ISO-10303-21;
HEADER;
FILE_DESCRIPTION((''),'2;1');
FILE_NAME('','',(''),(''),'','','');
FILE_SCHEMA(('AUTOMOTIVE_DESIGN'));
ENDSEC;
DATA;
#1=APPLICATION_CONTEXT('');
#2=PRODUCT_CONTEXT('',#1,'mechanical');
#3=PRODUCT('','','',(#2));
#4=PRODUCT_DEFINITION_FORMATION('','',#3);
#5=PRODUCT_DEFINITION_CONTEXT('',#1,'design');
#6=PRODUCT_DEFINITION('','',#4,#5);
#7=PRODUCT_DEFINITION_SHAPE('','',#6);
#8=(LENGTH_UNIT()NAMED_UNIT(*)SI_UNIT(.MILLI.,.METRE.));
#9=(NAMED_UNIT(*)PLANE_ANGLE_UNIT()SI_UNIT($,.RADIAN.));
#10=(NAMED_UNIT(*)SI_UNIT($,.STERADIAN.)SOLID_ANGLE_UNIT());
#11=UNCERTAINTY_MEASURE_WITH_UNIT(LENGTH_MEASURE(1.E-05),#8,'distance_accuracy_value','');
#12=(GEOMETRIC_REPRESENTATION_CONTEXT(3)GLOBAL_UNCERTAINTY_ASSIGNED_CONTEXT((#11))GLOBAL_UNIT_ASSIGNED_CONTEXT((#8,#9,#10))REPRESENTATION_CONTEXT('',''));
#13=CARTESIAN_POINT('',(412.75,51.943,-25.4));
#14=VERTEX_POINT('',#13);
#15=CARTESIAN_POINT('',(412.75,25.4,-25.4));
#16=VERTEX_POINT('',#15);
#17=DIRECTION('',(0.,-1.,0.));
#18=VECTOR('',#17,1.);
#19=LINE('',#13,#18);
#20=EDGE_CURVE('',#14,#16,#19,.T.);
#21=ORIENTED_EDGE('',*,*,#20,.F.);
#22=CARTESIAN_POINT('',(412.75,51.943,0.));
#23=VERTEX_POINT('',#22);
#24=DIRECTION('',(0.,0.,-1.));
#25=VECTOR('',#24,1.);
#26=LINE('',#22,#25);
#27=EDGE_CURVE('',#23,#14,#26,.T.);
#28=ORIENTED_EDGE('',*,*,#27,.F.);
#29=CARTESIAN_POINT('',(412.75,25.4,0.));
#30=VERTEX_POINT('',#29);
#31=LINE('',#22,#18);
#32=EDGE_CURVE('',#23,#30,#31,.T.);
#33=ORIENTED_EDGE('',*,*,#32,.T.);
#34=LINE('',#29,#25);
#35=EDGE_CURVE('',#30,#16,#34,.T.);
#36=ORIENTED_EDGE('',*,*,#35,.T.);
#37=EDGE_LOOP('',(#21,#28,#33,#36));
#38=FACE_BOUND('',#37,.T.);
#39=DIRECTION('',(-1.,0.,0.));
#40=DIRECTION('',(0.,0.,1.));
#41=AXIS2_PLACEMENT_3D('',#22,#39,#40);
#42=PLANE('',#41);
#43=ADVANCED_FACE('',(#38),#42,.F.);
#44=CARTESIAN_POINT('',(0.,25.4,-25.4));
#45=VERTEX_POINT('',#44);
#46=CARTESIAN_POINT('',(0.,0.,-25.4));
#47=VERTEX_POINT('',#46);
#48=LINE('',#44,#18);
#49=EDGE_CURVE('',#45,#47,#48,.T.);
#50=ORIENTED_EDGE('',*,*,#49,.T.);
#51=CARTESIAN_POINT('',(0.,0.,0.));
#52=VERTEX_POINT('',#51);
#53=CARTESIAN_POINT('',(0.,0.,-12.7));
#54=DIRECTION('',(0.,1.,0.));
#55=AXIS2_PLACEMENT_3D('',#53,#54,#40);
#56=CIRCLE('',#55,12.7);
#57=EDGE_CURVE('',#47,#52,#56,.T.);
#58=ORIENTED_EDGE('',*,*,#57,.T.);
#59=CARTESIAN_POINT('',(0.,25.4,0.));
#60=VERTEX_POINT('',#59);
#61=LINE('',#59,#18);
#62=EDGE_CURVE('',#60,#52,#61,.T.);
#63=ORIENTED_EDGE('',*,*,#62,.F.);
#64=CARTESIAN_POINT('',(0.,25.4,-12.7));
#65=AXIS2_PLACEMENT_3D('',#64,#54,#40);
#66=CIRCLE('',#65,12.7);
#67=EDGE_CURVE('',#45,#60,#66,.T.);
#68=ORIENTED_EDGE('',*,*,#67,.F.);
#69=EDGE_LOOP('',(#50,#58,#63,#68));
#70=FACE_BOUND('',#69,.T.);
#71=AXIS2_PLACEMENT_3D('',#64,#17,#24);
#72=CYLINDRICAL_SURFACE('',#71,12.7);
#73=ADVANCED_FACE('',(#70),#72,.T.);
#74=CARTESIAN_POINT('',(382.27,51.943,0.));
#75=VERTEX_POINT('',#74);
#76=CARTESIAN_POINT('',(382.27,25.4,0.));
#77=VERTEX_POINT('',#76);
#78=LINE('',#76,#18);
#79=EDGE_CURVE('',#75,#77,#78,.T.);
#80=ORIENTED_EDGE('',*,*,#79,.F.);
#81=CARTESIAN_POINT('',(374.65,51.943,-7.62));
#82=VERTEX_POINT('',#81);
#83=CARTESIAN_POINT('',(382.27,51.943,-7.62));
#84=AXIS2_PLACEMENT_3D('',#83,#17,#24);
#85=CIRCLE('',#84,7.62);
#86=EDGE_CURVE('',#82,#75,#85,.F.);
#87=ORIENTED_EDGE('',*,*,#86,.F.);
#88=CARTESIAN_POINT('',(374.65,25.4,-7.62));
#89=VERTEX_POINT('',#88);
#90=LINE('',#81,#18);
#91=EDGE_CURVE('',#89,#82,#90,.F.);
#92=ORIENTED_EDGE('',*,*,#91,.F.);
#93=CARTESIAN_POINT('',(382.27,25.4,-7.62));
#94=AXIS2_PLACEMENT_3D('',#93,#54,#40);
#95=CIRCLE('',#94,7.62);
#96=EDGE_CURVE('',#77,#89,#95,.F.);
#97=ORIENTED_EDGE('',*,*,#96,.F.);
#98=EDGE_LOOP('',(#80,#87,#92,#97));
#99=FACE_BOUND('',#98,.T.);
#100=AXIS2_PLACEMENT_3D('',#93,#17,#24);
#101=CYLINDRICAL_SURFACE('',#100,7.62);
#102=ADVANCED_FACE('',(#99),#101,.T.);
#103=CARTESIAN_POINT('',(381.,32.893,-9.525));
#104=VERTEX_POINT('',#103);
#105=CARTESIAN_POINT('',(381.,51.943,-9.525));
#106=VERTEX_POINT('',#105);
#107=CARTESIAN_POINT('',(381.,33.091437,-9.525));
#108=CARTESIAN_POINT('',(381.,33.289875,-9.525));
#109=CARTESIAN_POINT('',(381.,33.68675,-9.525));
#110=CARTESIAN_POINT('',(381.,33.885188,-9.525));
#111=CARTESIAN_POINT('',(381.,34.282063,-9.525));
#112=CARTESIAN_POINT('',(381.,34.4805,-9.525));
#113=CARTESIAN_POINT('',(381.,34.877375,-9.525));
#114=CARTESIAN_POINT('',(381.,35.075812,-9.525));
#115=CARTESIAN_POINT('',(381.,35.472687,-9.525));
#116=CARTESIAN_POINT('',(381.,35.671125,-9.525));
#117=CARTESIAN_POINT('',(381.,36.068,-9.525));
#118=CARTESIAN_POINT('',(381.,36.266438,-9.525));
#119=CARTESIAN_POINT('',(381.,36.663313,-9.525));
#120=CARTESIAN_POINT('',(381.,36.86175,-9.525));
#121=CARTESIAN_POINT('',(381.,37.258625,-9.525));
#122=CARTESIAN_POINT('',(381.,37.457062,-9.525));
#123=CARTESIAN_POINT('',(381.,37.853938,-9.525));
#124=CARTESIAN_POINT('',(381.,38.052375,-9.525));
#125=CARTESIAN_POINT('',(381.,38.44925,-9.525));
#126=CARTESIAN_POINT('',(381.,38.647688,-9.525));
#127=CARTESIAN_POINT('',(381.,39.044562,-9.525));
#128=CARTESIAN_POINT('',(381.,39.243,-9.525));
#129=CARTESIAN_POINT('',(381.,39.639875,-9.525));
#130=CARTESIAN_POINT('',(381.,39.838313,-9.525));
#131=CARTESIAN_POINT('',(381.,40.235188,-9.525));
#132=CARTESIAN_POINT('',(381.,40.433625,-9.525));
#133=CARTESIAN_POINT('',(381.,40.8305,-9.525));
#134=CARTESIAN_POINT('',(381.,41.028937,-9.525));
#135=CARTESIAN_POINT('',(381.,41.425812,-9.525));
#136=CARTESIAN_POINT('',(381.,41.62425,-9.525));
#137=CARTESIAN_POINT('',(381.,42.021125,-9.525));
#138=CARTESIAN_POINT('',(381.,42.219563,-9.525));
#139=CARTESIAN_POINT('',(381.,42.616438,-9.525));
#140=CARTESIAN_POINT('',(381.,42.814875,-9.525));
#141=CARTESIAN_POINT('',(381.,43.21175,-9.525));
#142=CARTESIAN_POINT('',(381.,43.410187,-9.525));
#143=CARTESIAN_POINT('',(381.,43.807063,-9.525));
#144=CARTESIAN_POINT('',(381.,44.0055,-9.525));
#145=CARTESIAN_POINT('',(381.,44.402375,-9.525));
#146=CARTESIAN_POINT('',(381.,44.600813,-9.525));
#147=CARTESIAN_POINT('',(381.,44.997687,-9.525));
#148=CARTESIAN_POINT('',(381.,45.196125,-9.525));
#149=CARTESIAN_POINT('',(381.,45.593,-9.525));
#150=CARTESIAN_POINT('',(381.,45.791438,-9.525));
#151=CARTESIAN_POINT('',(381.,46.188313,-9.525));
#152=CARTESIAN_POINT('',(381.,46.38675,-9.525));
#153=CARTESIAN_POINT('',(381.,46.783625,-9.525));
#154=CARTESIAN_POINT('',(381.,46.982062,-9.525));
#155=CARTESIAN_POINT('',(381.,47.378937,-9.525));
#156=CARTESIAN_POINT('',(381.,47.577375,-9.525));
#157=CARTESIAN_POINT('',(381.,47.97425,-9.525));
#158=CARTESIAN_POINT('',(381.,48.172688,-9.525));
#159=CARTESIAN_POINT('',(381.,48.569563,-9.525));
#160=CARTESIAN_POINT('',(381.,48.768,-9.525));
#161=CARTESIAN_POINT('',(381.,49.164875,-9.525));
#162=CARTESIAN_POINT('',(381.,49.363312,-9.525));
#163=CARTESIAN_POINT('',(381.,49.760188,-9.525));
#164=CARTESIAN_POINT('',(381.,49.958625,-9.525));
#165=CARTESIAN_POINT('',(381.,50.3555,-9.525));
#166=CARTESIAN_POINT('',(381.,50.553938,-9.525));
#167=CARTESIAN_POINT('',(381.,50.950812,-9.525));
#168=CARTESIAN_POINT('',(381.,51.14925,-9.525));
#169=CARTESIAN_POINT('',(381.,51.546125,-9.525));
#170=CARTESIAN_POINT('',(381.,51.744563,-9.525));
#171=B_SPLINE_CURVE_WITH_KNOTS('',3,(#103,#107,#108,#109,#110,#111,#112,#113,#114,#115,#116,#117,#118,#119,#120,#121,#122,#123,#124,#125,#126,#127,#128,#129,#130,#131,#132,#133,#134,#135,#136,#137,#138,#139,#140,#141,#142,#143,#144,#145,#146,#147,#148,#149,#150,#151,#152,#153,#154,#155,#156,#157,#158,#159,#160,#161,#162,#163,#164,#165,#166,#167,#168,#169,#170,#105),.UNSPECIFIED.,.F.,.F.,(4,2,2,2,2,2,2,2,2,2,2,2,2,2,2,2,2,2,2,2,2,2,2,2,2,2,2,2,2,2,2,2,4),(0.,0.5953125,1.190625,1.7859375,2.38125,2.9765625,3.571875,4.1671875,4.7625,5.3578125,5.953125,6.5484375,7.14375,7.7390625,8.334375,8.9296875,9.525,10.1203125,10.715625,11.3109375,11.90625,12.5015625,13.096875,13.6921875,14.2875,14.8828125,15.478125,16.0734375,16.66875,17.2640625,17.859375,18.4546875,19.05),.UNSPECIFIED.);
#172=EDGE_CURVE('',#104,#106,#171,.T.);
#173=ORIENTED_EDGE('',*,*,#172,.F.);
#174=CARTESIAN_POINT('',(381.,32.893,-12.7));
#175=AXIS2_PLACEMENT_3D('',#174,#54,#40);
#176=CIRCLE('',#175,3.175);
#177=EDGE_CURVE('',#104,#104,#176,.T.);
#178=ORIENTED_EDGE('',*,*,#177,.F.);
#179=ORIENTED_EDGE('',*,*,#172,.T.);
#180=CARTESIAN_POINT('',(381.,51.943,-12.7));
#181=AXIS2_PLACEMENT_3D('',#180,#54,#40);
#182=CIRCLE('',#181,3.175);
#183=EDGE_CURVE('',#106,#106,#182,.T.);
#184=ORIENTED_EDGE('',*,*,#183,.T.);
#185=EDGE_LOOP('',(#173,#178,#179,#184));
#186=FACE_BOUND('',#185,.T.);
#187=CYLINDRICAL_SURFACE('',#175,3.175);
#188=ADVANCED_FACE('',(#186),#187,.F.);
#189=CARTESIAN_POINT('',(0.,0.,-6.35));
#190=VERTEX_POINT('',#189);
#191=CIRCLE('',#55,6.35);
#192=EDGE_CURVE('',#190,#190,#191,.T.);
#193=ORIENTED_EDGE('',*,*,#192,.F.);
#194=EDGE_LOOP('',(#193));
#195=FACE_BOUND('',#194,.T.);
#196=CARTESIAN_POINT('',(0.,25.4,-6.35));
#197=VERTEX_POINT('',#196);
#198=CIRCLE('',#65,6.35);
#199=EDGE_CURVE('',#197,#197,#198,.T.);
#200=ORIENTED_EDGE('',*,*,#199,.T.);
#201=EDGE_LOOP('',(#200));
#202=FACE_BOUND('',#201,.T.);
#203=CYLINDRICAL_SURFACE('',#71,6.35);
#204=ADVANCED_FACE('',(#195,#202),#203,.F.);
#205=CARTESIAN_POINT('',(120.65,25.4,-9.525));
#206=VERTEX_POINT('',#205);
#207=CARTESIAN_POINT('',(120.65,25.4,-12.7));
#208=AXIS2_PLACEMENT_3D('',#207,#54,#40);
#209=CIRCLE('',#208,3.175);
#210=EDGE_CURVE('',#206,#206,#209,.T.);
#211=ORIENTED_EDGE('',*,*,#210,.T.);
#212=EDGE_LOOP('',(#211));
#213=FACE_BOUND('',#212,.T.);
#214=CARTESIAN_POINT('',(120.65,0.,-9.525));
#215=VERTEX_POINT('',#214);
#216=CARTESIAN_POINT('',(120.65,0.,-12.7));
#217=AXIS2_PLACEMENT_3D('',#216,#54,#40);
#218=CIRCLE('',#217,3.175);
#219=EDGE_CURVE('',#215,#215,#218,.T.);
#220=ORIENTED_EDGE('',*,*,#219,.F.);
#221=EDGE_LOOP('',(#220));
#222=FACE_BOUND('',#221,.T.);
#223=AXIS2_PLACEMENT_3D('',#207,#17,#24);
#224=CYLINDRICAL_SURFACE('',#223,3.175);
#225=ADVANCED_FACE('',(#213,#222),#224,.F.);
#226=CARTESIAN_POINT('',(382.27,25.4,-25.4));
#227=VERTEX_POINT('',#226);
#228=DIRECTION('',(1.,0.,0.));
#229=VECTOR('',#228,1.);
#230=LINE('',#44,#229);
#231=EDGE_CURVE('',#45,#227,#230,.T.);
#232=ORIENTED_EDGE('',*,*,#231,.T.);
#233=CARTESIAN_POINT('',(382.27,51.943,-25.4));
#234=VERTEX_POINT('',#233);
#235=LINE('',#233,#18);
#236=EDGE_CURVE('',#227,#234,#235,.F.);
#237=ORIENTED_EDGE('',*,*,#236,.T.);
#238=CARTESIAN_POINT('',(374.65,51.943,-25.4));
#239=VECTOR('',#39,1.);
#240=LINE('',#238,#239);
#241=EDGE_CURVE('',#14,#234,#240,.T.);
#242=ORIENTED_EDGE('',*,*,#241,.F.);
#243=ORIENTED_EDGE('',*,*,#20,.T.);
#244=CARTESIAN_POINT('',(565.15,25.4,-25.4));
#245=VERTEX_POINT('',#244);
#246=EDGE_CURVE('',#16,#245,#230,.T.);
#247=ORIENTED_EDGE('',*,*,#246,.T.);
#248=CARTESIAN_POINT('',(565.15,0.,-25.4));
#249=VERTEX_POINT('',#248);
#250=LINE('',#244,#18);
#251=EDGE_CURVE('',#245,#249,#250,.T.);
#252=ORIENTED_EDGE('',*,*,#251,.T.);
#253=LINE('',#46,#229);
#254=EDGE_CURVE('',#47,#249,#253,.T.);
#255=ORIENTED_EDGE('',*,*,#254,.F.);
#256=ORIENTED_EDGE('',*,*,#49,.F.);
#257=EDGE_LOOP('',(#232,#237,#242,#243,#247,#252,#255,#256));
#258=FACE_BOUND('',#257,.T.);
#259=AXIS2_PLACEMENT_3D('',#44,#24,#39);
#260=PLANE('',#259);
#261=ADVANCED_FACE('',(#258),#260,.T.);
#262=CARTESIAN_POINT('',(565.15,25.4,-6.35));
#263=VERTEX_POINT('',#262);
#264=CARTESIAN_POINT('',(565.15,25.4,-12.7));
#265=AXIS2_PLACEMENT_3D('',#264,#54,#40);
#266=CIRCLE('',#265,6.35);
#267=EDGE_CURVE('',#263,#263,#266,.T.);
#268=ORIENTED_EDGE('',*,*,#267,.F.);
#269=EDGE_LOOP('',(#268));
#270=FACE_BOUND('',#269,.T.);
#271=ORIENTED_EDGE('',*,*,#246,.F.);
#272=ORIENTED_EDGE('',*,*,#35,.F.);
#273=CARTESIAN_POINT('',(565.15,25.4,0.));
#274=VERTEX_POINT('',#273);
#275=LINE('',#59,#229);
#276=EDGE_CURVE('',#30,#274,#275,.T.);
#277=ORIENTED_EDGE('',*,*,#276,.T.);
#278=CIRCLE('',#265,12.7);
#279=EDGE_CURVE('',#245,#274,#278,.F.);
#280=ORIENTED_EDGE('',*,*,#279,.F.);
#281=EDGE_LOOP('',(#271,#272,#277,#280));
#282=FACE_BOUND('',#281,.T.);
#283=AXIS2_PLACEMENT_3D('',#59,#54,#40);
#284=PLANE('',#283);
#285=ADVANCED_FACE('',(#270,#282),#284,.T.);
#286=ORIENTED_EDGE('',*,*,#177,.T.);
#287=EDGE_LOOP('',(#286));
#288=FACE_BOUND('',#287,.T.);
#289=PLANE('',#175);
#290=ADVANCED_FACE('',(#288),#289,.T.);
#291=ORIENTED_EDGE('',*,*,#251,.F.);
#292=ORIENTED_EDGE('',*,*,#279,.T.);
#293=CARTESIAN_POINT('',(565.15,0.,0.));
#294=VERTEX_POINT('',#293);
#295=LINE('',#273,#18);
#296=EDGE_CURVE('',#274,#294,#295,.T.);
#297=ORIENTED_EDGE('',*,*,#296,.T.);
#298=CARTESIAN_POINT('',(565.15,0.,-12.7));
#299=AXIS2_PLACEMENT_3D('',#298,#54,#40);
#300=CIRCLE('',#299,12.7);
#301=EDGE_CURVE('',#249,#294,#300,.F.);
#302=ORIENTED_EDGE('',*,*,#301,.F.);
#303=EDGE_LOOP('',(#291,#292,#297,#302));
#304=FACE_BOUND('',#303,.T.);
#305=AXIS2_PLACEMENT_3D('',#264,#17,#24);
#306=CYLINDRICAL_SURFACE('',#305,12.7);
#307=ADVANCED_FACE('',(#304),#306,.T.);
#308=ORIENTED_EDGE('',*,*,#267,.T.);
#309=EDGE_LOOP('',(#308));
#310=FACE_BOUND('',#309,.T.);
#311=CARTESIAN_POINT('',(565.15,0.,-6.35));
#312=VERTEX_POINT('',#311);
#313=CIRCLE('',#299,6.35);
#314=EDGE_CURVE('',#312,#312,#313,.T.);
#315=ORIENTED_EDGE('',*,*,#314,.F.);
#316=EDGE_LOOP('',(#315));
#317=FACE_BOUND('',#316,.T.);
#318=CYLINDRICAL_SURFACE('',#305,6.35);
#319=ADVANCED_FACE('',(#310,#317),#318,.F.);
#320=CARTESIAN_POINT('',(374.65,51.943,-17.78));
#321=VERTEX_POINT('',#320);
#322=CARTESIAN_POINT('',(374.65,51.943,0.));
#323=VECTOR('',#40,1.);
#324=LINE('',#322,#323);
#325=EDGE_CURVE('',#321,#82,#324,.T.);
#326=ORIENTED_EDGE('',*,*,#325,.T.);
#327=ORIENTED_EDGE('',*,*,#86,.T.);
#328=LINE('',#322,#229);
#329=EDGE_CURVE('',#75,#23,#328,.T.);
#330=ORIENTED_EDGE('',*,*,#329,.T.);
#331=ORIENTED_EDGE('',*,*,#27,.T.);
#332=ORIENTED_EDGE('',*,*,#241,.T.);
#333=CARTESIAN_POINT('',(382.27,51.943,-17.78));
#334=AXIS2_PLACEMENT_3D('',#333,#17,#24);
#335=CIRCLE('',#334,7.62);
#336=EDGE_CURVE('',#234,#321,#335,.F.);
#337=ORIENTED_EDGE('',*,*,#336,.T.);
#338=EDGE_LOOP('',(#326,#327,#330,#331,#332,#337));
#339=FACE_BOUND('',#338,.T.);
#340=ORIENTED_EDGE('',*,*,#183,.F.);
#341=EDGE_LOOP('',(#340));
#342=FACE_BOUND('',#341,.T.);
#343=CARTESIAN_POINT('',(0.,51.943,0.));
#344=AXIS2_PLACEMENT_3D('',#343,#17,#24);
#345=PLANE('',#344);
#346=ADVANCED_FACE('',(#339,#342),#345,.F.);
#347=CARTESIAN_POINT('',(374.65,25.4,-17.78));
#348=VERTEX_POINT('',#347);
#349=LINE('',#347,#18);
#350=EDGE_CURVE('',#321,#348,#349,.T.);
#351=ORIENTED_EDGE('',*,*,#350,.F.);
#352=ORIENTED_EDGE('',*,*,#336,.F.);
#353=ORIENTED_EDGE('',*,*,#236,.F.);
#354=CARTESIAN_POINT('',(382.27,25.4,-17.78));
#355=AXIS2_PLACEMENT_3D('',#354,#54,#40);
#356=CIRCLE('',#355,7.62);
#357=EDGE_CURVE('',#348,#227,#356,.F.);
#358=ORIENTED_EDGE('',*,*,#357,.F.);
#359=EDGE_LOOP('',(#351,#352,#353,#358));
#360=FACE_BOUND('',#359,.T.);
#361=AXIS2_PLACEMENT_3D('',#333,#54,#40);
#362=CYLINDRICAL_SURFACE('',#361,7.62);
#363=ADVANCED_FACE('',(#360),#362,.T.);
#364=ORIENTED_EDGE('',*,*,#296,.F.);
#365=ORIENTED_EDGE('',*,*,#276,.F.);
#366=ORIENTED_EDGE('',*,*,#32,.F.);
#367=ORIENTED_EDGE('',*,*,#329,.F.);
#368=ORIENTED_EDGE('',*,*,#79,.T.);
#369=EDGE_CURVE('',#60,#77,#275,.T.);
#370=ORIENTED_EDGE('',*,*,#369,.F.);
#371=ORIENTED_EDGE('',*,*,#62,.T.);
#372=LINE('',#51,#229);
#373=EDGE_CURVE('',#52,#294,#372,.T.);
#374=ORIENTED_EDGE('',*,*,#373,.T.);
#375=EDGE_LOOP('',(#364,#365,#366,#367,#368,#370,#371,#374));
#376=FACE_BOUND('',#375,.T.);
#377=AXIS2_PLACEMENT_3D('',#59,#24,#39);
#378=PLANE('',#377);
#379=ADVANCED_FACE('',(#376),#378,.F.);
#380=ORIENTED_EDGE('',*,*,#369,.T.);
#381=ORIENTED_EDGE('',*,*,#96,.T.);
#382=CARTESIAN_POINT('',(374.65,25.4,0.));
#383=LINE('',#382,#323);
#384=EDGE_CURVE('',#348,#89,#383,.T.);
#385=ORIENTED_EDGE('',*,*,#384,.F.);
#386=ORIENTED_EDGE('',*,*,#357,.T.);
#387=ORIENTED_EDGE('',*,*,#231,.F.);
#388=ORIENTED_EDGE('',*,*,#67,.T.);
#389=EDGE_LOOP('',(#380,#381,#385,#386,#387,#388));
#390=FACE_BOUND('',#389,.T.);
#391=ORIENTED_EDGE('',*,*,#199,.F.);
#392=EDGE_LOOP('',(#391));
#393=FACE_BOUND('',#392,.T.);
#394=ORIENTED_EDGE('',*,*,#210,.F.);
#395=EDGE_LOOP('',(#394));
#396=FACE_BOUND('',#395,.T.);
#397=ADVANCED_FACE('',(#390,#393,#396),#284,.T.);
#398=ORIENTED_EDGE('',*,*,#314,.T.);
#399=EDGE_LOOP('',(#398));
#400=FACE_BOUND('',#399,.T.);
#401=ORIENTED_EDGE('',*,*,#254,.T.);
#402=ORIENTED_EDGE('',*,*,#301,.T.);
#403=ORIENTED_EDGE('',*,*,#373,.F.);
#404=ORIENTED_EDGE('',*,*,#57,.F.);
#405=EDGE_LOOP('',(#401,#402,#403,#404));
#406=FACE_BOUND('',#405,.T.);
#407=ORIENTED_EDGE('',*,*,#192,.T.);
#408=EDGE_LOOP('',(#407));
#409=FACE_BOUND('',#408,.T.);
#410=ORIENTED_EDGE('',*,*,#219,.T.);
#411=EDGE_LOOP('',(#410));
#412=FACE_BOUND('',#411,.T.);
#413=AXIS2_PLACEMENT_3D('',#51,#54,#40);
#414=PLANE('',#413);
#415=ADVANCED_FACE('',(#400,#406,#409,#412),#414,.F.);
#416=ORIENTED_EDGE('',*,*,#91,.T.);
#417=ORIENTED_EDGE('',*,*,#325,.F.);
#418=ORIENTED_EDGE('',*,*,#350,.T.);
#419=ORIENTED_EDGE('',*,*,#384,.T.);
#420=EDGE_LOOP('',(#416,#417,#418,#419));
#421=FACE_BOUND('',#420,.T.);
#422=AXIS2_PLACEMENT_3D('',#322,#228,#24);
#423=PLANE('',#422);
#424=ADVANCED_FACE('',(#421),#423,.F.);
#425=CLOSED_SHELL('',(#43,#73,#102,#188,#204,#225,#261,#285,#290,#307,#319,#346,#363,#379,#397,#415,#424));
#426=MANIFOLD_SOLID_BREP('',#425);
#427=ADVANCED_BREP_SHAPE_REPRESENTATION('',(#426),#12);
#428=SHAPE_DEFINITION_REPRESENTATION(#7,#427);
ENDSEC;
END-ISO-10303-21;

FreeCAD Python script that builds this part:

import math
import FreeCAD as App
import Part
import Sketcher
from FreeCAD import Vector
Q = App.Units.Quantity


def edges_at(feature, points):
    """Names of the edges that pass closest to the given points."""
    edges = feature.Shape.Edges
    near = lambda p: min(range(len(edges)), key=lambda i: edges[i].distToShape(Part.Vertex(*p))[0])
    return sorted({f"Edge{near(p) + 1}" for p in points})

doc = App.newDocument("Part")
body = doc.addObject("PartDesign::Body", "Body")

# Sketch on XZ plane
sketch1 = doc.addObject("Sketcher::SketchObject", "Sketch")
body.addObject(sketch1)
sketch1.AttachmentSupport = (doc.XZ_Plane, [""])
sketch1.MapMode = "FlatFace"
sketch1.addGeometry([
    Part.ArcOfCircle(Part.Circle(Vector(0, -12.7, 0), Vector(0, 0, 1), 12.7), math.radians(90), math.radians(270)),  # 0
    Part.LineSegment(Vector(0, 0, 0), Vector(565.1, 0, 0)),  # 1
    Part.ArcOfCircle(Part.Circle(Vector(565.1, -12.7, 0), Vector(0, 0, 1), 12.7), math.radians(-90), math.radians(90)),  # 2
    Part.LineSegment(Vector(565.1, -25.4, 0), Vector(0, -25.4, 0)),  # 3
    Part.Circle(Vector(0, -12.7, 0), Vector(0, 0, 1), 6.3),  # 4
    Part.Circle(Vector(120.7, -12.7, 0), Vector(0, 0, 1), 3.2),  # 5
    Part.Circle(Vector(565.1, -12.7, 0), Vector(0, 0, 1), 6.3),  # 6
], False)
sketch1.addConstraint([
    Sketcher.Constraint("Tangent", 0, 1, 1, 1),
    Sketcher.Constraint("Tangent", 1, 2, 2, 2),
    Sketcher.Constraint("Tangent", 2, 1, 3, 1),
    Sketcher.Constraint("Tangent", 3, 2, 0, 2),
    Sketcher.Constraint("Horizontal", 1),
    Sketcher.Constraint("Horizontal", 3),
    Sketcher.Constraint("Coincident", 0, 1, -1, 1),
    Sketcher.Constraint("Coincident", 4, 3, 0, 3),
    Sketcher.Constraint("Coincident", 6, 3, 2, 3),
    Sketcher.Constraint("Equal", 4, 6),
    Sketcher.Constraint("Horizontal", 4, 3, 5, 3),
    Sketcher.Constraint("Diameter", 4, Q("0.5 in")),
    Sketcher.Constraint("Radius", 0, Q("0.5 in")),
    Sketcher.Constraint("Diameter", 5, Q("0.25 in")),
    Sketcher.Constraint("DistanceX", 1, 1, 1, 2, Q("22.25 in")),
    Sketcher.Constraint("DistanceX", 5, 3, 2, 3, Q("17.5 in")),
])
pad1 = doc.addObject("PartDesign::Pad", "Pad")
body.addObject(pad1)
pad1.Profile = sketch1
pad1.Length = Q("1 in")
pad1.Reversed = True

# Sketch on XZ plane
sketch2 = doc.addObject("Sketcher::SketchObject", "Sketch001")
body.addObject(sketch2)
sketch2.AttachmentSupport = (doc.XZ_Plane, [""])
sketch2.MapMode = "FlatFace"
sketch2.AttachmentOffset = App.Placement(Vector(0, 0, -1 * 25.4), App.Rotation())
sketch2.addGeometry([
    Part.LineSegment(Vector(375, -25, 0), Vector(375, 0, 0)),
    Part.LineSegment(Vector(375, 0, 0), Vector(413, 0, 0)),
    Part.LineSegment(Vector(413, 0, 0), Vector(413, -25, 0)),
    Part.LineSegment(Vector(413, -25, 0), Vector(375, -25, 0)),
], False)
sketch2.addConstraint([
    Sketcher.Constraint("Coincident", 0, 2, 1, 1),
    Sketcher.Constraint("Coincident", 1, 2, 2, 1),
    Sketcher.Constraint("Coincident", 2, 2, 3, 1),
    Sketcher.Constraint("Coincident", 3, 2, 0, 1),
    Sketcher.Constraint("Vertical", 0),
    Sketcher.Constraint("Horizontal", 1),
    Sketcher.Constraint("Vertical", 2),
    Sketcher.Constraint("Horizontal", 3),
    Sketcher.Constraint("PointOnObject", 0, 2, -1),
    Sketcher.Constraint("DistanceY", 0, 1, 0, 2, Q("1 in")),
    Sketcher.Constraint("DistanceX", 1, 1, 1, 2, Q("1.5 in")),
    Sketcher.Constraint("DistanceX", -1, 1, 0, 2, Q("14.75 in")),
])
pad2 = doc.addObject("PartDesign::Pad", "Pad001")
body.addObject(pad2)
pad2.Profile = sketch2
pad2.Length = Q("1.045 in")
pad2.Reversed = True

# Sketch on XZ plane
sketch3 = doc.addObject("Sketcher::SketchObject", "Sketch002")
body.addObject(sketch3)
sketch3.AttachmentSupport = (doc.XZ_Plane, [""])
sketch3.MapMode = "FlatFace"
sketch3.AttachmentOffset = App.Placement(Vector(0, 0, -2.045 * 25.4), App.Rotation())
sketch3.addGeometry(Part.Circle(Vector(381, -12.7, 0), Vector(0, 0, 1), 3.2), False)
sketch3.addConstraint([
    Sketcher.Constraint("Diameter", 0, Q("0.25 in")),
    Sketcher.Constraint("DistanceX", -1, 1, 0, 3, Q("15 in")),
    Sketcher.Constraint("DistanceY", 0, 3, -1, 1, Q("0.5 in")),
])
pocket1 = doc.addObject("PartDesign::Pocket", "Pocket")
body.addObject(pocket1)
pocket1.Profile = sketch3
pocket1.Length = Q("0.75 in")
pocket1.Reversed = True
doc.recompute()

fillet = doc.addObject("PartDesign::Fillet", "Fillet")
body.addObject(fillet)
fillet.Base = (pocket1, edges_at(pocket1, [(374.65, 38.672, 0), (374.65, 38.672, -25.4)]))
fillet.Radius = Q("0.3 in")

doc.recompute()
